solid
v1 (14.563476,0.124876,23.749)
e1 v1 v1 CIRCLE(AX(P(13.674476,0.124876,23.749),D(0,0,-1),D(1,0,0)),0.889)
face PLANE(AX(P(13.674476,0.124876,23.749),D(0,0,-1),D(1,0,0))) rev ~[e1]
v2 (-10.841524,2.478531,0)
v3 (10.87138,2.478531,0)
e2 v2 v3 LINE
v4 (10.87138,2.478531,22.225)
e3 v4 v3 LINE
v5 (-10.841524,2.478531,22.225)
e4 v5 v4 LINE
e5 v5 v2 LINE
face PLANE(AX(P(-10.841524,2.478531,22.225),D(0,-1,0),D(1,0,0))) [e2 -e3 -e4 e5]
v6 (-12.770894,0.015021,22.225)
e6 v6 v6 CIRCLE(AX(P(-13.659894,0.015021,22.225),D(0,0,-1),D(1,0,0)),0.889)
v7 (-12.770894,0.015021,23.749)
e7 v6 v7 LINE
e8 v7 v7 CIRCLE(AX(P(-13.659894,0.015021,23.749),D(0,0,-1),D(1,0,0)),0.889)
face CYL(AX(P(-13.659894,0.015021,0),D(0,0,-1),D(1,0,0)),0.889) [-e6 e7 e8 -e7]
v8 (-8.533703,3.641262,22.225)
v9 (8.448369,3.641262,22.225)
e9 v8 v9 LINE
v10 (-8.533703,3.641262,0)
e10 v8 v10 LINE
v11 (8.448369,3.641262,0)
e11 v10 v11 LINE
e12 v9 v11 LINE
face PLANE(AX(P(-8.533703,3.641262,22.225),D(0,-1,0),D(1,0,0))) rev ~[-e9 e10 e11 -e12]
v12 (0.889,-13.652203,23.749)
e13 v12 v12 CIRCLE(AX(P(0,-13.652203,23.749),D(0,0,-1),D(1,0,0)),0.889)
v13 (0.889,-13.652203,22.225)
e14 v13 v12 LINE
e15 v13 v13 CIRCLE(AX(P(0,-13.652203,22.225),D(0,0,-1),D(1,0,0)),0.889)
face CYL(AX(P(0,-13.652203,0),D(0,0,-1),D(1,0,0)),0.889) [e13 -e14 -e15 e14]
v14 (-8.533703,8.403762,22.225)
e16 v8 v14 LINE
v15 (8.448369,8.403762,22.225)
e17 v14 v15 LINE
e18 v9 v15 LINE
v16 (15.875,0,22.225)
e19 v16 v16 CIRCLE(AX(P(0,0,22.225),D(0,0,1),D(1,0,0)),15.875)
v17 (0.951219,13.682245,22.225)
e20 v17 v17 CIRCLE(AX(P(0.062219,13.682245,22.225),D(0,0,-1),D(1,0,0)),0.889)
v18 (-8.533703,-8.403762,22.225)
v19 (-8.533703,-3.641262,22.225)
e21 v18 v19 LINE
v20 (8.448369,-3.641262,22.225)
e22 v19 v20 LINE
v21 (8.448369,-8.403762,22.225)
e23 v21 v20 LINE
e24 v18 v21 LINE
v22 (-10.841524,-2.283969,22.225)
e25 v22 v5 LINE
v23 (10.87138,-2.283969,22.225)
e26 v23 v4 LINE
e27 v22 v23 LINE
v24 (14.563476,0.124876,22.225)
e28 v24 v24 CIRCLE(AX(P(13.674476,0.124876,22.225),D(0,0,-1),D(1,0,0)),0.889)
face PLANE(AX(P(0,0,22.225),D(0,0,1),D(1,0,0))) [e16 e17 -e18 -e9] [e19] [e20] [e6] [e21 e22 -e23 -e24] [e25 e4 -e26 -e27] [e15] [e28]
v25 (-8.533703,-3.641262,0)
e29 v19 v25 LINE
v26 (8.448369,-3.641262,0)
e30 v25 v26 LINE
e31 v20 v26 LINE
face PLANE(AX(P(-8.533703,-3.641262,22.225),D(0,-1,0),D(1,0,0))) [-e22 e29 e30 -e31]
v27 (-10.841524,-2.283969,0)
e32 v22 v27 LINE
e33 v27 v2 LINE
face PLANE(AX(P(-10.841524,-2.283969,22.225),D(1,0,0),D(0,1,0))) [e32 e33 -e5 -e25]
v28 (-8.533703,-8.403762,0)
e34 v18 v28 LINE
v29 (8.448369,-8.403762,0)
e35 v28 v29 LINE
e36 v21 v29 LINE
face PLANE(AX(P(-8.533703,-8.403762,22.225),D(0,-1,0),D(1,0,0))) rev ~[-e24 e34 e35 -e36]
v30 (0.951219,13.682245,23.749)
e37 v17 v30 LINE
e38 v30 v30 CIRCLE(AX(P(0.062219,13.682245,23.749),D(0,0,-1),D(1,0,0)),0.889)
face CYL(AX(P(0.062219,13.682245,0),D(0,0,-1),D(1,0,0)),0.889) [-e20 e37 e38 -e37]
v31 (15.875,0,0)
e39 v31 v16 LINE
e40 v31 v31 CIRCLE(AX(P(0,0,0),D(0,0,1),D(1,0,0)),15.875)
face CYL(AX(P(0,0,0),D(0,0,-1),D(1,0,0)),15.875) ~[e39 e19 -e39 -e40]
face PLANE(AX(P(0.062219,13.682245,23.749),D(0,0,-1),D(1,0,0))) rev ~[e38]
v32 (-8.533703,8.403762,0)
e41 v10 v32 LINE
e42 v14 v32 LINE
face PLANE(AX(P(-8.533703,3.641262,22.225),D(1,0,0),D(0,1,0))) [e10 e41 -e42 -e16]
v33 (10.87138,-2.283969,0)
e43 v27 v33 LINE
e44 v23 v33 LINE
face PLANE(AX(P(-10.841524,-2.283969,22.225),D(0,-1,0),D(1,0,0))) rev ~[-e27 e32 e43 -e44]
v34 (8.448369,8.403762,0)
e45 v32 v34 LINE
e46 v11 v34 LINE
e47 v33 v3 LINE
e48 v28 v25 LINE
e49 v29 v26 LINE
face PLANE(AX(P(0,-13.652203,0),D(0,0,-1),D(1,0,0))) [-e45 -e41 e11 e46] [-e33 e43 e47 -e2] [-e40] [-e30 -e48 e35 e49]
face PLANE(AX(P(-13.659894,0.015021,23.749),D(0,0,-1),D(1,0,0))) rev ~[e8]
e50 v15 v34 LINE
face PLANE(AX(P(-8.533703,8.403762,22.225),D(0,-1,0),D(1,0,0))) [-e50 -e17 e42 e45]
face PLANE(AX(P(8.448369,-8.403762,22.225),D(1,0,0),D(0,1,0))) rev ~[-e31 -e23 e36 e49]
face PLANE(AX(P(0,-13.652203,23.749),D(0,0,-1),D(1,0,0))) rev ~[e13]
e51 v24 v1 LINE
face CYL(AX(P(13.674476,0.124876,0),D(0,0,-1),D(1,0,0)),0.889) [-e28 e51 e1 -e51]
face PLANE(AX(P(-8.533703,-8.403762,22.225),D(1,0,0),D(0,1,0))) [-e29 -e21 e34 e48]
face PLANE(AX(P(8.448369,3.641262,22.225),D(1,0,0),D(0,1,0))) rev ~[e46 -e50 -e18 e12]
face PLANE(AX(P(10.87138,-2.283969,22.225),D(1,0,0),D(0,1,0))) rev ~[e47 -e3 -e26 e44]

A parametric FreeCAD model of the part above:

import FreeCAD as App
import Part
import Sketcher

V = App.Vector
Q = App.Units.Quantity

doc = App.newDocument("Part")
params = doc.addObject("Spreadsheet::Sheet", "Params")
for row, (alias, value) in enumerate([
    ("sketch1_diameter", "1.25 in"),
    ("pad1_length", "0.875 in"),
    ("sketch2_diameter", "0.07 in"),
    ("pad2_length", "0.935 in"),
    ("sketch3_height", "0.1875 in"),
    ("pocket1_length", "0.875 in"),
    ("sketch4_height", "0.1875 in"),
    ("pocket2_length", "0.875 in"),
], start=1):
    params.set(f"A{row}", alias)
    params.set(f"B{row}", "=" + value)
    params.setAlias(f"B{row}", alias)

body = doc.addObject("PartDesign::Body", "Body")

sketch1 = body.newObject("Sketcher::SketchObject", "Sketch")
sketch1.AttachmentSupport = (doc.getObject("XY_Plane"), [""])
sketch1.MapMode = "FlatFace"
sketch1.addGeometry(Part.Circle(V(0, 0, 0), V(0, 0, 1), 16), False)
sketch1.addConstraint([
    Sketcher.Constraint("Coincident", 0, 3, -1, 1),
    Sketcher.Constraint("Diameter", 0, Q("1.25 in")),
])
sketch1.setExpression("Constraints[1]", "Params.sketch1_diameter")
pad1 = body.newObject("PartDesign::Pad", "Pad")
pad1.Profile = sketch1
pad1.setExpression("Length", "Params.pad1_length")

sketch2 = body.newObject("Sketcher::SketchObject", "Sketch001")
sketch2.AttachmentSupport = (doc.getObject("XY_Plane"), [""])
sketch2.MapMode = "FlatFace"
sketch2.addGeometry([
    Part.Circle(V(0, -13.7, 0), V(0, 0, 1), 0.9),
    Part.Circle(V(-13.7, 0, 0), V(0, 0, 1), 0.9),
    Part.Circle(V(0.1, 13.7, 0), V(0, 0, 1), 0.9),
    Part.Circle(V(13.7, 0.1, 0), V(0, 0, 1), 0.9),
], False)
sketch2.addConstraint([
    Sketcher.Constraint("Equal", 0, 1),
    Sketcher.Constraint("Equal", 1, 2),
    Sketcher.Constraint("Equal", 2, 3),
    Sketcher.Constraint("PointOnObject", 0, 3, -2),
    Sketcher.Constraint("Diameter", 0, Q("0.07 in")),
    Sketcher.Constraint("DistanceY", -1, 1, 1, 3, 0.015021),
    Sketcher.Constraint("DistanceX", -1, 1, 2, 3, 0.062219),
    Sketcher.Constraint("DistanceY", 0, 3, 2, 3, 27.334448),
    Sketcher.Constraint("DistanceY", 3, 3, 2, 3, 13.557369),
    Sketcher.Constraint("DistanceX", 1, 3, 3, 3, 27.33437),
    Sketcher.Constraint("DistanceY", 0, 3, -1, 1, 13.652203),
    Sketcher.Constraint("DistanceX", 1, 3, -1, 1, 13.659894),
])
sketch2.setExpression("Constraints[4]", "Params.sketch2_diameter")
pad2 = body.newObject("PartDesign::Pad", "Pad001")
pad2.Profile = sketch2
pad2.setExpression("Length", "Params.pad2_length")

sketch3 = body.newObject("Sketcher::SketchObject", "Sketch002")
sketch3.AttachmentSupport = (doc.getObject("XY_Plane"), [""])
sketch3.MapMode = "FlatFace"
sketch3.AttachmentOffset = App.Placement(V(0, 0, 0.875 * 25.4), App.Rotation())
sketch3.addGeometry([
    Part.LineSegment(V(-10.8, 2.5, 0), V(-10.8, -2.3, 0)),
    Part.LineSegment(V(-10.8, -2.3, 0), V(10.9, -2.3, 0)),
    Part.LineSegment(V(10.9, -2.3, 0), V(10.9, 2.5, 0)),
    Part.LineSegment(V(10.9, 2.5, 0), V(-10.8, 2.5, 0)),
], False)
sketch3.addConstraint([
    Sketcher.Constraint("Coincident", 0, 2, 1, 1),
    Sketcher.Constraint("Coincident", 1, 2, 2, 1),
    Sketcher.Constraint("Coincident", 2, 2, 3, 1),
    Sketcher.Constraint("Coincident", 3, 2, 0, 1),
    Sketcher.Constraint("Vertical", 0),
    Sketcher.Constraint("Horizontal", 1),
    Sketcher.Constraint("Vertical", 2),
    Sketcher.Constraint("Horizontal", 3),
    Sketcher.Constraint("DistanceY", 0, 2, 0, 1, Q("0.1875 in")),
    Sketcher.Constraint("DistanceX", 1, 1, 1, 2, 21.712904),
    Sketcher.Constraint("DistanceY", 0, 2, -1, 1, 2.283969),
    Sketcher.Constraint("DistanceX", -1, 1, 1, 2, 10.87138),
])
sketch3.setExpression("Constraints[8]", "Params.sketch3_height")
pocket1 = body.newObject("PartDesign::Pocket", "Pocket")
pocket1.Profile = sketch3
pocket1.setExpression("Length", "Params.pocket1_length")

sketch4 = body.newObject("Sketcher::SketchObject", "Sketch003")
sketch4.AttachmentSupport = (doc.getObject("XY_Plane"), [""])
sketch4.MapMode = "FlatFace"
sketch4.AttachmentOffset = App.Placement(V(0, 0, 0.875 * 25.4), App.Rotation())
sketch4.addGeometry([
    Part.LineSegment(V(-8.5, 8.4, 0), V(-8.5, 3.6, 0)),
    Part.LineSegment(V(-8.5, 3.6, 0), V(8.4, 3.6, 0)),
    Part.LineSegment(V(8.4, 3.6, 0), V(8.4, 8.4, 0)),
    Part.LineSegment(V(8.4, 8.4, 0), V(-8.5, 8.4, 0)),
    Part.LineSegment(V(-8.5, -3.6, 0), V(-8.5, -8.4, 0)),
    Part.LineSegment(V(-8.5, -8.4, 0), V(8.4, -8.4, 0)),
    Part.LineSegment(V(8.4, -8.4, 0), V(8.4, -3.6, 0)),
    Part.LineSegment(V(8.4, -3.6, 0), V(-8.5, -3.6, 0)),
], False)
sketch4.addConstraint([
    Sketcher.Constraint("Coincident", 0, 2, 1, 1),
    Sketcher.Constraint("Coincident", 1, 2, 2, 1),
    Sketcher.Constraint("Coincident", 2, 2, 3, 1),
    Sketcher.Constraint("Coincident", 3, 2, 0, 1),
    Sketcher.Constraint("Coincident", 4, 2, 5, 1),
    Sketcher.Constraint("Coincident", 5, 2, 6, 1),
    Sketcher.Constraint("Coincident", 6, 2, 7, 1),
    Sketcher.Constraint("Coincident", 7, 2, 4, 1),
    Sketcher.Constraint("Vertical", 0),
    Sketcher.Constraint("Horizontal", 1),
    Sketcher.Constraint("Vertical", 2),
    Sketcher.Constraint("Horizontal", 3),
    Sketcher.Constraint("Vertical", 4),
    Sketcher.Constraint("Horizontal", 5),
    Sketcher.Constraint("Vertical", 6),
    Sketcher.Constraint("Horizontal", 7),
    Sketcher.Constraint("Symmetric", 3, 2, 4, 2, -1),
    Sketcher.Constraint("Symmetric", 1, 2, 6, 2, -1),
    Sketcher.Constraint("DistanceY", 0, 2, 0, 1, Q("0.1875 in")),
    Sketcher.Constraint("DistanceX", 1, 1, 1, 2, 16.982072),
    Sketcher.Constraint("DistanceX", -1, 1, 1, 2, 8.448369),
    Sketcher.Constraint("DistanceY", -1, 1, 0, 2, 3.641262),
])
sketch4.setExpression("Constraints[18]", "Params.sketch4_height")
pocket2 = body.newObject("PartDesign::Pocket", "Pocket001")
pocket2.Profile = sketch4
pocket2.setExpression("Length", "Params.pocket2_length")

doc.recompute()
